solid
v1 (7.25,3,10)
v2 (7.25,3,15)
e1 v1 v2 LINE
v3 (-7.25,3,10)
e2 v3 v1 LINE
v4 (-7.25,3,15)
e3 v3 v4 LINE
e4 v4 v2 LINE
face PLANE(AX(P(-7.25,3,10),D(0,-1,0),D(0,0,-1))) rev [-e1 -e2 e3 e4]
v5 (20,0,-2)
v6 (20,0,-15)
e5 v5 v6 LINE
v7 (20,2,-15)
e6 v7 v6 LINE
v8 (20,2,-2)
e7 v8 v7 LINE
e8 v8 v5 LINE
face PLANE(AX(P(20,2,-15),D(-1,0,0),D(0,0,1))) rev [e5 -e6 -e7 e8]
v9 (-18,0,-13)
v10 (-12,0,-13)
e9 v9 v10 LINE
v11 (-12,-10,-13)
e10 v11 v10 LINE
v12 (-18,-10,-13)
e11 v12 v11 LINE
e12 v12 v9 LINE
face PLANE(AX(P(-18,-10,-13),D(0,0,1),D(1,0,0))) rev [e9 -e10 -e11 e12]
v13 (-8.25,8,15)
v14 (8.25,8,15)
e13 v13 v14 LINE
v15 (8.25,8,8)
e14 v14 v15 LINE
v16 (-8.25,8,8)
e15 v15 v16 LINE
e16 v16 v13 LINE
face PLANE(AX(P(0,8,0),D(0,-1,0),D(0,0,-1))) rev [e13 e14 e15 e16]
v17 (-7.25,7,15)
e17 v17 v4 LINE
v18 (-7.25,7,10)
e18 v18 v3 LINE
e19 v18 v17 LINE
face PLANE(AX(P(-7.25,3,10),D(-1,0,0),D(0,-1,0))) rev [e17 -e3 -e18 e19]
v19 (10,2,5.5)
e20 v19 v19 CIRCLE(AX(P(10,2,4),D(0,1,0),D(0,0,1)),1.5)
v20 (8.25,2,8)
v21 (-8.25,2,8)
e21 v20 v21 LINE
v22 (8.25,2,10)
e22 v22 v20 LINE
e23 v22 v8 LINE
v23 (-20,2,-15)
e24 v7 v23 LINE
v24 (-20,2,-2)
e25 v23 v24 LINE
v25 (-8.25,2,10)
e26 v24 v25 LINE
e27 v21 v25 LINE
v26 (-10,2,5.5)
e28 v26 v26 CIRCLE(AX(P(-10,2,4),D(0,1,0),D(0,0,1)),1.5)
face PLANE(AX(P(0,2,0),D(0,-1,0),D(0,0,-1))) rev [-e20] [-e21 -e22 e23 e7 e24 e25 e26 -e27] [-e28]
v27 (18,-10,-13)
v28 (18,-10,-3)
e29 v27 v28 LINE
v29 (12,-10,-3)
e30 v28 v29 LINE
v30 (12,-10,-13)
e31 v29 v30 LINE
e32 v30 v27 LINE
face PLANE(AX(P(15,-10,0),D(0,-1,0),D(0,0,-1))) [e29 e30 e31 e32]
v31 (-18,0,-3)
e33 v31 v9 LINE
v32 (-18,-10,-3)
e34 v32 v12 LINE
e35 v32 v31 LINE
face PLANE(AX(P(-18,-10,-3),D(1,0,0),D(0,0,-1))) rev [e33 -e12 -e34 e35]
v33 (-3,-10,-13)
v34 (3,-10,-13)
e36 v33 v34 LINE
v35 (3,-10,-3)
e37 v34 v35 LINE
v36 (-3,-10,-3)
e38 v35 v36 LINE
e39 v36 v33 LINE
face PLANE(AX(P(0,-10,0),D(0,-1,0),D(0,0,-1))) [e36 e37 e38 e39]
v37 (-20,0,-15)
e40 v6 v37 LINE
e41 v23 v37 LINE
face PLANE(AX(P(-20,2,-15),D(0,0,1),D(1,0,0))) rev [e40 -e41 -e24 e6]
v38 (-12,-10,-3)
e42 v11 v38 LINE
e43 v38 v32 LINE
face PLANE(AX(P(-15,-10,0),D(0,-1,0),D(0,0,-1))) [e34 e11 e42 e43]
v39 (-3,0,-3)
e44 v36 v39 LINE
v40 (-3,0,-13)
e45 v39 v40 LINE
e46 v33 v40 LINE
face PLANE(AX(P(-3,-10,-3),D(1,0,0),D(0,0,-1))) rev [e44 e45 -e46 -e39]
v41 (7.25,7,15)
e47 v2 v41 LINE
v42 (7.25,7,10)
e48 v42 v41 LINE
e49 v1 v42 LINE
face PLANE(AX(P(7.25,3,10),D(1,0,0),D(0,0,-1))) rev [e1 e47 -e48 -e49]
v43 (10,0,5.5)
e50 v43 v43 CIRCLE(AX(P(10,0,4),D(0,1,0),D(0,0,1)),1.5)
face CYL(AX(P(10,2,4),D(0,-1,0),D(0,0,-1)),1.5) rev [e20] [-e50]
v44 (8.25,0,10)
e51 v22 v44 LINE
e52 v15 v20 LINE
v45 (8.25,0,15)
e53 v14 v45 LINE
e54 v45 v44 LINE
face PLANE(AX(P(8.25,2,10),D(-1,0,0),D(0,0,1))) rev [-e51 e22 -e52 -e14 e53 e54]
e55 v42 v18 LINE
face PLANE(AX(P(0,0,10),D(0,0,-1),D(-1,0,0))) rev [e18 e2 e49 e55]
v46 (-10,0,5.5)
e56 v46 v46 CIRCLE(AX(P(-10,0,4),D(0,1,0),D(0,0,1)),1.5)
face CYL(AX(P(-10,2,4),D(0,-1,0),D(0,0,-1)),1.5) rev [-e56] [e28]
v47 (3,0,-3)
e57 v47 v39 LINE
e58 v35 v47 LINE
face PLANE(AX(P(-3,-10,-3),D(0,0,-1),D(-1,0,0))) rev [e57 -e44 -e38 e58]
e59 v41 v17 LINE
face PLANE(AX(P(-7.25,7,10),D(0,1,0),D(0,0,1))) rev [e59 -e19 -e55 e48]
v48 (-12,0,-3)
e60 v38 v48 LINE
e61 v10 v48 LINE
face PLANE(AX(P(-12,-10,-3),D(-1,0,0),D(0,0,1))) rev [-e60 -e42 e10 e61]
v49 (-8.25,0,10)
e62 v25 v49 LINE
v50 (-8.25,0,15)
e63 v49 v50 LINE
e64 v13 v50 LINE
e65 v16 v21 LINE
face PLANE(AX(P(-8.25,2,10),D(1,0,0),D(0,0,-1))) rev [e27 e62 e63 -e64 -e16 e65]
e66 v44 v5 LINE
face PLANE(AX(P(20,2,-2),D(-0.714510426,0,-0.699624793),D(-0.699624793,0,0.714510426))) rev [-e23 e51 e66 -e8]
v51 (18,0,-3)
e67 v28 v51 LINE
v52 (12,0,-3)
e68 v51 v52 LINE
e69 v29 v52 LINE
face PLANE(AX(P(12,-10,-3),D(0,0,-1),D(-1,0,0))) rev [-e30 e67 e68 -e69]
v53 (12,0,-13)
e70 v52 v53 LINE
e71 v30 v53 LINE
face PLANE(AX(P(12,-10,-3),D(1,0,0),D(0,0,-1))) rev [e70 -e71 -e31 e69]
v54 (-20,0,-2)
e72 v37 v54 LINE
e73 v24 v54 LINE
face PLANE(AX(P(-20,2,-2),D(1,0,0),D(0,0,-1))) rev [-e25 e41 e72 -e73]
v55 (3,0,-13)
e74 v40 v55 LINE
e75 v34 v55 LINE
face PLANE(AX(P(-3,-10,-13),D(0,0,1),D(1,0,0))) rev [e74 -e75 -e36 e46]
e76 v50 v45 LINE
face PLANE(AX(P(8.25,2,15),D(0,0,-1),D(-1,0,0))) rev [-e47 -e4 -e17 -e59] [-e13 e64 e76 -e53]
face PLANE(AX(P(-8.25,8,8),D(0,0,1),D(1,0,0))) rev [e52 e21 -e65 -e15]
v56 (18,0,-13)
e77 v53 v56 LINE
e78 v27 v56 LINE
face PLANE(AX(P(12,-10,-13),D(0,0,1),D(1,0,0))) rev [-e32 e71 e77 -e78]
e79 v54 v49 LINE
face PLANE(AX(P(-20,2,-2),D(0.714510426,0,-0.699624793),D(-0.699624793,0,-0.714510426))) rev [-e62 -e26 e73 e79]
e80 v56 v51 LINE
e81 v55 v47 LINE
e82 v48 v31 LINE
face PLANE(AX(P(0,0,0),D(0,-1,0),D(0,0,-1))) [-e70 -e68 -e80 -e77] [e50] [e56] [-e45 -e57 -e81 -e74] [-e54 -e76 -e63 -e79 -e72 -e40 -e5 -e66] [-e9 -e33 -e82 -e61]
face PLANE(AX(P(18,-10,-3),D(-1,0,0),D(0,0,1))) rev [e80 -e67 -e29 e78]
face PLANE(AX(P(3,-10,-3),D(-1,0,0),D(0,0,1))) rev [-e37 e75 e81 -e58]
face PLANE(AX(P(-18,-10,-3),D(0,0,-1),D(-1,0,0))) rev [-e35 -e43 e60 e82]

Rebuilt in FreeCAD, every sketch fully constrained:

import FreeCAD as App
import Part
import Sketcher

V = App.Vector


def add_polygon(sketch, points):
    """Adds a closed chain of lines whose ends are joined by coincident constraints."""
    first, n = sketch.GeometryCount, len(points)
    for a, b in zip(points, points[1:] + points[:1]):
        sketch.addGeometry(Part.LineSegment(App.Vector(*a, 0), App.Vector(*b, 0)), False)
    for i in range(n):
        sketch.addConstraint(Sketcher.Constraint("Coincident", first + i, 2, first + (i + 1) % n, 1))

doc = App.newDocument("Part")
params = doc.addObject("Spreadsheet::Sheet", "Params")
for row, (alias, value) in enumerate([
    ("sketch1_diameter", "3 mm"),
    ("sketch1_width", "40 mm"),
    ("sketch1_height", "13 mm"),
    ("sketch1_height2", "5 mm"),
    ("sketch1_width2", "16.5 mm"),
    ("pad1_length", "2 mm"),
    ("sketch2_height", "7 mm"),
    ("sketch2_width", "16.5 mm"),
    ("pad2_length", "6 mm"),
    ("sketch3_width", "6 mm"),
    ("sketch3_height", "10 mm"),
    ("pad3_length", "10 mm"),
    ("linearpattern_pitch", "15 mm"),
    ("linearpattern2_pitch", "15 mm"),
    ("sketch4_height", "4 mm"),
    ("sketch4_width", "14.5 mm"),
    ("pocket1_length", "5 mm"),
], start=1):
    params.set(f"A{row}", alias)
    params.set(f"B{row}", "=" + value)
    params.setAlias(f"B{row}", alias)

body = doc.addObject("PartDesign::Body", "Body")

# Sketch on XZ plane
sketch1 = body.newObject("Sketcher::SketchObject", "Sketch")
sketch1.AttachmentSupport = (doc.getObject("XZ_Plane"), [""])
sketch1.MapMode = "FlatFace"
add_polygon(sketch1, [(20, -15), (-20, -15), (-20, -2), (-8.25, 10), (-8.25, 15), (8.25, 15), (8.25, 10), (20, -2)])  # lines 0-7
sketch1.addGeometry(Part.Circle(V(10, 4, 0), V(0, 0, 1), 1.5), False)  # 8
sketch1.addGeometry(Part.Circle(V(-10, 4, 0), V(0, 0, 1), 1.5), False)  # 9
sketch1.addConstraint([
    Sketcher.Constraint("Horizontal", 0),
    Sketcher.Constraint("Vertical", 1),
    Sketcher.Constraint("Vertical", 3),
    Sketcher.Constraint("Horizontal", 4),
    Sketcher.Constraint("Vertical", 5),
    Sketcher.Constraint("Vertical", 7),
    Sketcher.Constraint("Equal", 8, 9),
    Sketcher.Constraint("Symmetric", 8, 3, 9, 3, -2),
    Sketcher.Constraint("Symmetric", 2, 2, 5, 2, -2),
    Sketcher.Constraint("Symmetric", 1, 2, 6, 2, -2),
    Sketcher.Constraint("Diameter", 8, 3.0),
    Sketcher.Constraint("DistanceX", 0, 2, 0, 1, 40.0),
    Sketcher.Constraint("DistanceY", 1, 1, 1, 2, 13.0),
    Sketcher.Constraint("DistanceY", 3, 1, 3, 2, 5.0),
    Sketcher.Constraint("DistanceX", 4, 1, 4, 2, 16.5),
    Sketcher.Constraint("DistanceX", -1, 1, 8, 3, 10.0),
    Sketcher.Constraint("DistanceY", -1, 1, 8, 3, 4.0),
    Sketcher.Constraint("DistanceY", 0, 2, -1, 1, 15.0),
    Sketcher.Constraint("DistanceY", -1, 1, 2, 2, 10.0),
])
sketch1.setExpression("Constraints[18]", "Params.sketch1_diameter")
sketch1.setExpression("Constraints[19]", "Params.sketch1_width")
sketch1.setExpression("Constraints[20]", "Params.sketch1_height")
sketch1.setExpression("Constraints[21]", "Params.sketch1_height2")
sketch1.setExpression("Constraints[22]", "Params.sketch1_width2")
pad1 = body.newObject("PartDesign::Pad", "Pad")
pad1.Profile = sketch1
pad1.setExpression("Length", "Params.pad1_length")
pad1.Reversed = True

# Sketch on XZ plane
sketch2 = body.newObject("Sketcher::SketchObject", "Sketch001")
sketch2.AttachmentSupport = (doc.getObject("XZ_Plane"), [""])
sketch2.MapMode = "FlatFace"
sketch2.AttachmentOffset = App.Placement(V(0, 0, -2), App.Rotation())
add_polygon(sketch2, [(-8.25, 8), (-8.25, 15), (8.25, 15), (8.25, 8)])  # lines 0-3
sketch2.addConstraint([
    Sketcher.Constraint("Vertical", 0),
    Sketcher.Constraint("Horizontal", 1),
    Sketcher.Constraint("Vertical", 2),
    Sketcher.Constraint("Horizontal", 3),
    Sketcher.Constraint("DistanceY", 0, 1, 0, 2, 7.0),
    Sketcher.Constraint("DistanceX", 1, 1, 1, 2, 16.5),
    Sketcher.Constraint("DistanceY", -1, 1, 0, 2, 15.0),
    Sketcher.Constraint("DistanceX", 0, 2, -1, 1, 8.25),
])
sketch2.setExpression("Constraints[8]", "Params.sketch2_height")
sketch2.setExpression("Constraints[9]", "Params.sketch2_width")
pad2 = body.newObject("PartDesign::Pad", "Pad001")
pad2.Profile = sketch2
pad2.setExpression("Length", "Params.pad2_length")
pad2.Reversed = True

# Sketch on XZ plane
sketch3 = body.newObject("Sketcher::SketchObject", "Sketch002")
sketch3.AttachmentSupport = (doc.getObject("XZ_Plane"), [""])
sketch3.MapMode = "FlatFace"
add_polygon(sketch3, [(-3, -3), (-3, -13), (3, -13), (3, -3)])  # lines 0-3
sketch3.addConstraint([
    Sketcher.Constraint("Vertical", 0),
    Sketcher.Constraint("Horizontal", 1),
    Sketcher.Constraint("Vertical", 2),
    Sketcher.Constraint("Horizontal", 3),
    Sketcher.Constraint("DistanceX", 1, 1, 1, 2, 6.0),
    Sketcher.Constraint("DistanceY", 0, 2, 0, 1, 10.0),
    Sketcher.Constraint("DistanceX", 0, 2, -1, 1, 3.0),
    Sketcher.Constraint("DistanceY", 0, 2, -1, 1, 13.0),
])
sketch3.setExpression("Constraints[8]", "Params.sketch3_width")
sketch3.setExpression("Constraints[9]", "Params.sketch3_height")
pad3 = body.newObject("PartDesign::Pad", "Pad002")
pad3.Profile = sketch3
pad3.setExpression("Length", "Params.pad3_length")
doc.recompute()

linearpattern = body.newObject("PartDesign::LinearPattern", "LinearPattern")
linearpattern.Originals = [pad3]
linearpattern.Direction = (doc.getObject("X_Axis"), [""])
linearpattern.Mode = "offset"
linearpattern.setExpression("Offset", "Params.linearpattern_pitch")
linearpattern.Occurrences = 2
body.Tip = linearpattern
doc.recompute()

linearpattern2 = body.newObject("PartDesign::LinearPattern", "LinearPattern001")
linearpattern2.Originals = [pad3]
linearpattern2.Direction = (doc.getObject("X_Axis"), [""])
linearpattern2.Mode = "offset"
linearpattern2.setExpression("Offset", "Params.linearpattern2_pitch")
linearpattern2.Occurrences = 2
linearpattern2.Reversed = True
body.Tip = linearpattern2

# Sketch on XY plane
sketch4 = body.newObject("Sketcher::SketchObject", "Sketch003")
sketch4.AttachmentSupport = (doc.getObject("XY_Plane"), [""])
sketch4.MapMode = "FlatFace"
sketch4.AttachmentOffset = App.Placement(V(0, 0, 15), App.Rotation())
add_polygon(sketch4, [(-7.25, 7), (-7.25, 3), (7.25, 3), (7.25, 7)])  # lines 0-3
sketch4.addConstraint([
    Sketcher.Constraint("Vertical", 0),
    Sketcher.Constraint("Horizontal", 1),
    Sketcher.Constraint("Vertical", 2),
    Sketcher.Constraint("Horizontal", 3),
    Sketcher.Constraint("DistanceY", 0, 2, 0, 1, 4.0),
    Sketcher.Constraint("DistanceX", 1, 1, 1, 2, 14.5),
    Sketcher.Constraint("DistanceY", -1, 1, 0, 2, 3.0),
    Sketcher.Constraint("DistanceX", 0, 2, -1, 1, 7.25),
])
sketch4.setExpression("Constraints[8]", "Params.sketch4_height")
sketch4.setExpression("Constraints[9]", "Params.sketch4_width")
pocket1 = body.newObject("PartDesign::Pocket", "Pocket")
pocket1.Profile = sketch4
pocket1.setExpression("Length", "Params.pocket1_length")

doc.recompute()
